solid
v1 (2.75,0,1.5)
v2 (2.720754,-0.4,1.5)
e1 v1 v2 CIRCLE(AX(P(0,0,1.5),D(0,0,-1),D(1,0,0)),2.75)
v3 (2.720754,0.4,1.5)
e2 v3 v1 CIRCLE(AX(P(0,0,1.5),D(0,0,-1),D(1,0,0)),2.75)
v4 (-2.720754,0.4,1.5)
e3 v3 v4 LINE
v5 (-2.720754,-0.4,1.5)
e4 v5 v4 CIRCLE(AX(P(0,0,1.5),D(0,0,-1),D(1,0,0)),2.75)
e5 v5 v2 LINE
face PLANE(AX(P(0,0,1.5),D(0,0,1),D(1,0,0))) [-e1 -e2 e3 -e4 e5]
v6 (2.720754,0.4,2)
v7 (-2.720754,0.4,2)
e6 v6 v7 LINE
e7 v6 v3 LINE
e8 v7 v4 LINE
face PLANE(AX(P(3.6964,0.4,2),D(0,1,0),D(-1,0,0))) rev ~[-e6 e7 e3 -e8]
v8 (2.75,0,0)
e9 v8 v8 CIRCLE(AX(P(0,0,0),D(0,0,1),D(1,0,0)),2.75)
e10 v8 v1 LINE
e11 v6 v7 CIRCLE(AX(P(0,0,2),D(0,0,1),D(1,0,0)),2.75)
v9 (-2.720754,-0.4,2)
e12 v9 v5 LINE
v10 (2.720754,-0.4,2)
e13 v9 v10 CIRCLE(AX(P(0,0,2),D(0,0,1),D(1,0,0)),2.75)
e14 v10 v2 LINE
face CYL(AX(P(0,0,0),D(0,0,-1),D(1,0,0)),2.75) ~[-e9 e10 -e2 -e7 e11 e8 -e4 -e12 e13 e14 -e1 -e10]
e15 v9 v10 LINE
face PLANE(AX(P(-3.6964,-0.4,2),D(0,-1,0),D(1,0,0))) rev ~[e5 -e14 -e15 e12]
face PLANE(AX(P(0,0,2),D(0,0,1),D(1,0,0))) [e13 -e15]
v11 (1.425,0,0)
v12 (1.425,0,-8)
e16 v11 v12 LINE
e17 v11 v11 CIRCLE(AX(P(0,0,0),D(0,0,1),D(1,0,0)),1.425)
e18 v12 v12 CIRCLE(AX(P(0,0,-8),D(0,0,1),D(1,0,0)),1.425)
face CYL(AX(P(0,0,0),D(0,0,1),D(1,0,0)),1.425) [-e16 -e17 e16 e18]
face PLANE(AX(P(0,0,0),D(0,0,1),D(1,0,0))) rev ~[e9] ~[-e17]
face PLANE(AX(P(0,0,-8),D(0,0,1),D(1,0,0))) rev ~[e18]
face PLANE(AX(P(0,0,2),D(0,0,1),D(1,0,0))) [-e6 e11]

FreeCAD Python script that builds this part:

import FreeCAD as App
import Part
import Sketcher
from FreeCAD import Vector


def add_polygon(sketch, points):
    """Adds a closed chain of lines whose ends are joined by coincident constraints."""
    first, n = sketch.GeometryCount, len(points)
    for a, b in zip(points, points[1:] + points[:1]):
        sketch.addGeometry(Part.LineSegment(App.Vector(*a, 0), App.Vector(*b, 0)), False)
    for i in range(n):
        sketch.addConstraint(Sketcher.Constraint("Coincident", first + i, 2, first + (i + 1) % n, 1))

doc = App.newDocument("Part")
body = doc.addObject("PartDesign::Body", "Body")

sketch1 = doc.addObject("Sketcher::SketchObject", "Sketch")
body.addObject(sketch1)
sketch1.AttachmentSupport = (doc.XY_Plane, [""])
sketch1.MapMode = "FlatFace"
sketch1.addGeometry(Part.Circle(Vector(0, 0, 0), Vector(0, 0, 1), 1.4), False)
sketch1.addConstraint([
    Sketcher.Constraint("Coincident", 0, 3, -1, 1),
    Sketcher.Constraint("Diameter", 0, 2.85),
])
pad1 = doc.addObject("PartDesign::Pad", "Pad")
body.addObject(pad1)
pad1.Profile = sketch1
pad1.Length = 8
pad1.Reversed = True

sketch2 = doc.addObject("Sketcher::SketchObject", "Sketch001")
body.addObject(sketch2)
sketch2.AttachmentSupport = (doc.XY_Plane, [""])
sketch2.MapMode = "FlatFace"
sketch2.addGeometry(Part.Circle(Vector(0, 0, 0), Vector(0, 0, 1), 2.8), False)
sketch2.addConstraint([
    Sketcher.Constraint("Coincident", 0, 3, -1, 1),
    Sketcher.Constraint("Diameter", 0, 5.5),
])
pad2 = doc.addObject("PartDesign::Pad", "Pad001")
body.addObject(pad2)
pad2.Profile = sketch2
pad2.Length = 2

sketch3 = doc.addObject("Sketcher::SketchObject", "Sketch002")
body.addObject(sketch3)
sketch3.AttachmentSupport = (doc.XY_Plane, [""])
sketch3.MapMode = "FlatFace"
sketch3.AttachmentOffset = App.Placement(Vector(0, 0, 2), App.Rotation())
add_polygon(sketch3, [(3.7, -0.4), (3.7, 0.4), (-3.7, 0.4), (-3.7, -0.4)])
sketch3.addConstraint([
    Sketcher.Constraint("Vertical", 0),
    Sketcher.Constraint("Horizontal", 1),
    Sketcher.Constraint("Vertical", 2),
    Sketcher.Constraint("Horizontal", 3),
    Sketcher.Constraint("Symmetric", 0, 2, 2, 2, -1, 1),
    Sketcher.Constraint("DistanceY", 0, 1, 0, 2, 0.8),
    Sketcher.Constraint("DistanceX", 1, 2, 1, 1, 7.3928),
])
pocket1 = doc.addObject("PartDesign::Pocket", "Pocket")
body.addObject(pocket1)
pocket1.Profile = sketch3
pocket1.Length = 0.5

doc.recompute()
